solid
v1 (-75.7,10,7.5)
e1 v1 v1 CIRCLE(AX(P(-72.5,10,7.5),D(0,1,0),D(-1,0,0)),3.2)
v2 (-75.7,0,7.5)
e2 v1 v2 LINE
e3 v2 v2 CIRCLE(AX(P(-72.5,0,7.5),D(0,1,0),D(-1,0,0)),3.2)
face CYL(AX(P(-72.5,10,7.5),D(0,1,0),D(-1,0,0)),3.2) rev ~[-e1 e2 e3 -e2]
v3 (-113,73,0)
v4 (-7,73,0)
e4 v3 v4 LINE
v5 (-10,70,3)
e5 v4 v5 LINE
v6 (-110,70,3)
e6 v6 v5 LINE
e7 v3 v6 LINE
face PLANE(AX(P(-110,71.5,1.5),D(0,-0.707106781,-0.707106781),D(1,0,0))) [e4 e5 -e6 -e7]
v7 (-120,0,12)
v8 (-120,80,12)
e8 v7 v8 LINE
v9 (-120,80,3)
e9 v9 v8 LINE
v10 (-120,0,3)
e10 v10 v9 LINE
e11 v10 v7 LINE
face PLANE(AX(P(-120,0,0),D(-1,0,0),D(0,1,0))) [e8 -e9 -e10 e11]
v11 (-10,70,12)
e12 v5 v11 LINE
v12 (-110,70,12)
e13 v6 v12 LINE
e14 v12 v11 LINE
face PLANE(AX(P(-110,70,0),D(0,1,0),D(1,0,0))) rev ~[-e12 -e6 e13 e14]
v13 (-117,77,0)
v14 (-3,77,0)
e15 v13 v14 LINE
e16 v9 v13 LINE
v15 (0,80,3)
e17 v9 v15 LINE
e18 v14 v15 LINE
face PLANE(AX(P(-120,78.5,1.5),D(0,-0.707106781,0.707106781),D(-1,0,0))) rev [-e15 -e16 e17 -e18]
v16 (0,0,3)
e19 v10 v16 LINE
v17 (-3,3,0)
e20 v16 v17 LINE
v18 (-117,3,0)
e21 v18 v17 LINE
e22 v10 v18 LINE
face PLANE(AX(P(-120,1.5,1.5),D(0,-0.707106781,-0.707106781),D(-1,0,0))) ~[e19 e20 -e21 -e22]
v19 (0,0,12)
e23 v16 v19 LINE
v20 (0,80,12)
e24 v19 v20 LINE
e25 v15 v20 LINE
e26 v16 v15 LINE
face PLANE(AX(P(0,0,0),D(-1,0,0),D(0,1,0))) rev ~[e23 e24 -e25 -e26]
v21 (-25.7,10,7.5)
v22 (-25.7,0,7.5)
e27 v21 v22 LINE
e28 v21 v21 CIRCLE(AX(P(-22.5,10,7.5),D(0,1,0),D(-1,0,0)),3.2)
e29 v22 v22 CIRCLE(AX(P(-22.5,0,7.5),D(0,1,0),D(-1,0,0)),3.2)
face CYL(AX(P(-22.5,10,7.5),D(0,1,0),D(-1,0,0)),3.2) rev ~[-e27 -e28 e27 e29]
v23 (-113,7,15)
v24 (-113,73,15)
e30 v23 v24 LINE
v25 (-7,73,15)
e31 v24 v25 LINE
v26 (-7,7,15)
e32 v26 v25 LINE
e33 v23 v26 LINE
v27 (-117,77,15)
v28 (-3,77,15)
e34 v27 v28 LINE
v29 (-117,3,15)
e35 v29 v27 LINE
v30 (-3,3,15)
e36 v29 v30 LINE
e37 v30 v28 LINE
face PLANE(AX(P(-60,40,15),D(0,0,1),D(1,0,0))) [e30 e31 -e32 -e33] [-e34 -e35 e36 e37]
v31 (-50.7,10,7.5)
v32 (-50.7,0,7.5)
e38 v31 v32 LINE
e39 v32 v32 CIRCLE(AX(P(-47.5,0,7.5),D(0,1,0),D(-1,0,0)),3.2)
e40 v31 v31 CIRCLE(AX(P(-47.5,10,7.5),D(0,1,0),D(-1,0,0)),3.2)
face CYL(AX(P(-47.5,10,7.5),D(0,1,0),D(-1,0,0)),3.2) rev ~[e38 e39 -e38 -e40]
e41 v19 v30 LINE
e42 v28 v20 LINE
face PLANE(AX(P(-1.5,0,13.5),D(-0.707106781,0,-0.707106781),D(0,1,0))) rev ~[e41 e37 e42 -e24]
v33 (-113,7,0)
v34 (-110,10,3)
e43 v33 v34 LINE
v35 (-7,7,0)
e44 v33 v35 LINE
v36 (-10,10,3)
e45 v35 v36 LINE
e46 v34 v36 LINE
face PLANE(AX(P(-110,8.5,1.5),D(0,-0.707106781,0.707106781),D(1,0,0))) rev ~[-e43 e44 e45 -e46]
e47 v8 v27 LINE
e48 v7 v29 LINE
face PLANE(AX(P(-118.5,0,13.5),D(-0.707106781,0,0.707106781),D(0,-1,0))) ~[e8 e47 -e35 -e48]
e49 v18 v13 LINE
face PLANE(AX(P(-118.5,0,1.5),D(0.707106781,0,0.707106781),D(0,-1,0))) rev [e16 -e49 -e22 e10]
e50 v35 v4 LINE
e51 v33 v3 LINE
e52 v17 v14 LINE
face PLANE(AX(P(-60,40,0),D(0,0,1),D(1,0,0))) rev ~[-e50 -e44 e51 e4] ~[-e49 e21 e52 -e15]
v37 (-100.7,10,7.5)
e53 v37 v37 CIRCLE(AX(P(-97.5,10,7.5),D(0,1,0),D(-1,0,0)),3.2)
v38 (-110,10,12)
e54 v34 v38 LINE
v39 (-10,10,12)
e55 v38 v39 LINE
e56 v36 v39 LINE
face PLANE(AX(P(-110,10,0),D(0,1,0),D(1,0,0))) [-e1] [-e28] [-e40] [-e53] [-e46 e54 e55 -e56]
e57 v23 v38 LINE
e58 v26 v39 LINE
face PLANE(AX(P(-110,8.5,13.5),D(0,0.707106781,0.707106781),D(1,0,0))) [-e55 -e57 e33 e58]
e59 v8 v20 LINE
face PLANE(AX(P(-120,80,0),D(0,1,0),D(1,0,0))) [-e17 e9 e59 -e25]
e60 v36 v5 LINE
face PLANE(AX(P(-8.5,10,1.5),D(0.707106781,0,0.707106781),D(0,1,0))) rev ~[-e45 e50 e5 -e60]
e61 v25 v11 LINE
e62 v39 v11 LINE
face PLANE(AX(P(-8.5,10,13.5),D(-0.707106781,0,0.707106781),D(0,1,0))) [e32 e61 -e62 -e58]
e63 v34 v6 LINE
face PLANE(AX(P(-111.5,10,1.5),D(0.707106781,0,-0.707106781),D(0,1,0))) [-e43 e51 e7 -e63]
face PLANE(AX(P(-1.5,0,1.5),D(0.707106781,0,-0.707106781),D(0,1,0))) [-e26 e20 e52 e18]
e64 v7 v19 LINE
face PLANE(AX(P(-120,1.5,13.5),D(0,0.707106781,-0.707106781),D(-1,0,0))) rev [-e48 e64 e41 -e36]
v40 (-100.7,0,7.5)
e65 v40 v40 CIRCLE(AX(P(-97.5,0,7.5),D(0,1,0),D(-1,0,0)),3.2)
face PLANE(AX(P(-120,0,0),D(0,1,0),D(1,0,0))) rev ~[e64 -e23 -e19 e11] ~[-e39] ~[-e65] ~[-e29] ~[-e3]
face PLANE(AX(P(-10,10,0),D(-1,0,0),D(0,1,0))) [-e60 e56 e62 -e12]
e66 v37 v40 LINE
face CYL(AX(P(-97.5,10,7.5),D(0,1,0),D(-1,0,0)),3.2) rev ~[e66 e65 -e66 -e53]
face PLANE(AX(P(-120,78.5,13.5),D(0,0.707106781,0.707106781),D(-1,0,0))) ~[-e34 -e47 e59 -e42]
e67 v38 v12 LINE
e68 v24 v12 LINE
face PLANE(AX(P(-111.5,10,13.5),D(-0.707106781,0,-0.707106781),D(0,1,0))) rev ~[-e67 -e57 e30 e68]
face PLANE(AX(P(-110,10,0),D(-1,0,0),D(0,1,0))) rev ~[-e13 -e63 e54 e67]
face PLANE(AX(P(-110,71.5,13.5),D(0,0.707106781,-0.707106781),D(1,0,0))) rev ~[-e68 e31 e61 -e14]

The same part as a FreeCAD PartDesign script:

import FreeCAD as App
import Part
import Sketcher
Q = App.Units.Quantity


def edges_at(feature, points):
    """Names of the edges that pass closest to the given points."""
    edges = feature.Shape.Edges
    near = lambda p: min(range(len(edges)), key=lambda i: edges[i].distToShape(Part.Vertex(*p))[0])
    return sorted({f"Edge{near(p) + 1}" for p in points})

doc = App.newDocument("Part")
body = doc.addObject("PartDesign::Body", "Body")

sketch1 = doc.addObject("Sketcher::SketchObject", "Sketch")
body.addObject(sketch1)
sketch1.AttachmentSupport = (doc.XY_Plane, [""])
sketch1.MapMode = "FlatFace"
sketch1.addGeometry(Part.LineSegment(App.Vector(-120, 80, 0), App.Vector(-120, 0, 0)), False)
sketch1.addGeometry(Part.LineSegment(App.Vector(-120, 0, 0), App.Vector(0, 0, 0)), False)
sketch1.addGeometry(Part.LineSegment(App.Vector(0, 0, 0), App.Vector(0, 80, 0)), False)
sketch1.addGeometry(Part.LineSegment(App.Vector(0, 80, 0), App.Vector(-120, 80, 0)), False)
sketch1.addGeometry(Part.LineSegment(App.Vector(-10, 10, 0), App.Vector(-110, 10, 0)), False)
sketch1.addGeometry(Part.LineSegment(App.Vector(-110, 10, 0), App.Vector(-110, 70, 0)), False)
sketch1.addGeometry(Part.LineSegment(App.Vector(-110, 70, 0), App.Vector(-10, 70, 0)), False)
sketch1.addGeometry(Part.LineSegment(App.Vector(-10, 70, 0), App.Vector(-10, 10, 0)), False)
sketch1.addConstraint(Sketcher.Constraint("Coincident", 0, 2, 1, 1))
sketch1.addConstraint(Sketcher.Constraint("Coincident", 1, 2, 2, 1))
sketch1.addConstraint(Sketcher.Constraint("Coincident", 2, 2, 3, 1))
sketch1.addConstraint(Sketcher.Constraint("Coincident", 3, 2, 0, 1))
sketch1.addConstraint(Sketcher.Constraint("Coincident", 4, 2, 5, 1))
sketch1.addConstraint(Sketcher.Constraint("Coincident", 5, 2, 6, 1))
sketch1.addConstraint(Sketcher.Constraint("Coincident", 6, 2, 7, 1))
sketch1.addConstraint(Sketcher.Constraint("Coincident", 7, 2, 4, 1))
sketch1.addConstraint(Sketcher.Constraint("Vertical", 0))
sketch1.addConstraint(Sketcher.Constraint("Horizontal", 1))
sketch1.addConstraint(Sketcher.Constraint("Vertical", 2))
sketch1.addConstraint(Sketcher.Constraint("Horizontal", 3))
sketch1.addConstraint(Sketcher.Constraint("Horizontal", 4))
sketch1.addConstraint(Sketcher.Constraint("Vertical", 5))
sketch1.addConstraint(Sketcher.Constraint("Horizontal", 6))
sketch1.addConstraint(Sketcher.Constraint("Vertical", 7))
sketch1.addConstraint(Sketcher.Constraint("Coincident", 1, 2, -1, 1))
sketch1.addConstraint(Sketcher.Constraint("DistanceX", 1, 1, 1, 2, Q("120 mm")))
sketch1.addConstraint(Sketcher.Constraint("DistanceX", 4, 2, 4, 1, Q("100 mm")))
sketch1.addConstraint(Sketcher.Constraint("DistanceY", 0, 2, 0, 1, Q("80 mm")))
sketch1.addConstraint(Sketcher.Constraint("DistanceY", 5, 1, 5, 2, Q("60 mm")))
sketch1.addConstraint(Sketcher.Constraint("DistanceX", 4, 2, -1, 1, Q("110 mm")))
sketch1.addConstraint(Sketcher.Constraint("DistanceY", -1, 1, 4, 2, Q("10 mm")))
pad1 = doc.addObject("PartDesign::Pad", "Pad")
body.addObject(pad1)
pad1.Profile = sketch1
pad1.Length = 15

sketch2 = doc.addObject("Sketcher::SketchObject", "Sketch001")
body.addObject(sketch2)
sketch2.AttachmentSupport = (doc.XZ_Plane, [""])
sketch2.MapMode = "FlatFace"
sketch2.AttachmentOffset = App.Placement(App.Vector(0, 0, -10), App.Rotation())
sketch2.addGeometry(Part.Circle(App.Vector(-72.5, 7.5, 0), App.Vector(0, 0, 1), 3.2), False)
sketch2.addGeometry(Part.Circle(App.Vector(-47.5, 7.5, 0), App.Vector(0, 0, 1), 3.2), False)
sketch2.addGeometry(Part.Circle(App.Vector(-97.5, 7.5, 0), App.Vector(0, 0, 1), 3.2), False)
sketch2.addGeometry(Part.Circle(App.Vector(-22.5, 7.5, 0), App.Vector(0, 0, 1), 3.2), False)
sketch2.addConstraint(Sketcher.Constraint("Equal", 0, 1))
sketch2.addConstraint(Sketcher.Constraint("Equal", 1, 2))
sketch2.addConstraint(Sketcher.Constraint("Equal", 2, 3))
sketch2.addConstraint(Sketcher.Constraint("Horizontal", 0, 3, 1, 3))
sketch2.addConstraint(Sketcher.Constraint("Horizontal", 1, 3, 2, 3))
sketch2.addConstraint(Sketcher.Constraint("Horizontal", 2, 3, 3, 3))
sketch2.addConstraint(Sketcher.Constraint("Diameter", 0, Q("6.4 mm")))
sketch2.addConstraint(Sketcher.Constraint("DistanceX", 0, 3, 1, 3, Q("25 mm")))
sketch2.addConstraint(Sketcher.Constraint("DistanceX", 2, 3, 0, 3, Q("25 mm")))
sketch2.addConstraint(Sketcher.Constraint("DistanceX", 1, 3, 3, 3, Q("25 mm")))
sketch2.addConstraint(Sketcher.Constraint("DistanceX", 0, 3, -1, 1, Q("72.5 mm")))
sketch2.addConstraint(Sketcher.Constraint("DistanceY", -1, 1, 0, 3, Q("7.5 mm")))
pocket1 = doc.addObject("PartDesign::Pocket", "Pocket")
body.addObject(pocket1)
pocket1.Profile = sketch2
pocket1.Type = "ThroughAll"
pocket1.Reversed = True
doc.recompute()

chamfer = doc.addObject("PartDesign::Chamfer", "Chamfer")
body.addObject(chamfer)
chamfer.Base = (pocket1, edges_at(pocket1, [
    (-60, 0, 15),
    (0, 40, 15),
    (-60, 80, 15),
    (-120, 40, 15),
    (-10, 40, 15),
    (-60, 10, 15),
    (-110, 40, 15),
    (-60, 70, 15),
    (-60, 0, 0),
    (0, 40, 0),
    (-60, 80, 0),
    (-120, 40, 0),
    (-10, 40, 0),
    (-60, 10, 0),
    (-110, 40, 0),
    (-60, 70, 0),
]))
chamfer.Size = 3

doc.recompute()
